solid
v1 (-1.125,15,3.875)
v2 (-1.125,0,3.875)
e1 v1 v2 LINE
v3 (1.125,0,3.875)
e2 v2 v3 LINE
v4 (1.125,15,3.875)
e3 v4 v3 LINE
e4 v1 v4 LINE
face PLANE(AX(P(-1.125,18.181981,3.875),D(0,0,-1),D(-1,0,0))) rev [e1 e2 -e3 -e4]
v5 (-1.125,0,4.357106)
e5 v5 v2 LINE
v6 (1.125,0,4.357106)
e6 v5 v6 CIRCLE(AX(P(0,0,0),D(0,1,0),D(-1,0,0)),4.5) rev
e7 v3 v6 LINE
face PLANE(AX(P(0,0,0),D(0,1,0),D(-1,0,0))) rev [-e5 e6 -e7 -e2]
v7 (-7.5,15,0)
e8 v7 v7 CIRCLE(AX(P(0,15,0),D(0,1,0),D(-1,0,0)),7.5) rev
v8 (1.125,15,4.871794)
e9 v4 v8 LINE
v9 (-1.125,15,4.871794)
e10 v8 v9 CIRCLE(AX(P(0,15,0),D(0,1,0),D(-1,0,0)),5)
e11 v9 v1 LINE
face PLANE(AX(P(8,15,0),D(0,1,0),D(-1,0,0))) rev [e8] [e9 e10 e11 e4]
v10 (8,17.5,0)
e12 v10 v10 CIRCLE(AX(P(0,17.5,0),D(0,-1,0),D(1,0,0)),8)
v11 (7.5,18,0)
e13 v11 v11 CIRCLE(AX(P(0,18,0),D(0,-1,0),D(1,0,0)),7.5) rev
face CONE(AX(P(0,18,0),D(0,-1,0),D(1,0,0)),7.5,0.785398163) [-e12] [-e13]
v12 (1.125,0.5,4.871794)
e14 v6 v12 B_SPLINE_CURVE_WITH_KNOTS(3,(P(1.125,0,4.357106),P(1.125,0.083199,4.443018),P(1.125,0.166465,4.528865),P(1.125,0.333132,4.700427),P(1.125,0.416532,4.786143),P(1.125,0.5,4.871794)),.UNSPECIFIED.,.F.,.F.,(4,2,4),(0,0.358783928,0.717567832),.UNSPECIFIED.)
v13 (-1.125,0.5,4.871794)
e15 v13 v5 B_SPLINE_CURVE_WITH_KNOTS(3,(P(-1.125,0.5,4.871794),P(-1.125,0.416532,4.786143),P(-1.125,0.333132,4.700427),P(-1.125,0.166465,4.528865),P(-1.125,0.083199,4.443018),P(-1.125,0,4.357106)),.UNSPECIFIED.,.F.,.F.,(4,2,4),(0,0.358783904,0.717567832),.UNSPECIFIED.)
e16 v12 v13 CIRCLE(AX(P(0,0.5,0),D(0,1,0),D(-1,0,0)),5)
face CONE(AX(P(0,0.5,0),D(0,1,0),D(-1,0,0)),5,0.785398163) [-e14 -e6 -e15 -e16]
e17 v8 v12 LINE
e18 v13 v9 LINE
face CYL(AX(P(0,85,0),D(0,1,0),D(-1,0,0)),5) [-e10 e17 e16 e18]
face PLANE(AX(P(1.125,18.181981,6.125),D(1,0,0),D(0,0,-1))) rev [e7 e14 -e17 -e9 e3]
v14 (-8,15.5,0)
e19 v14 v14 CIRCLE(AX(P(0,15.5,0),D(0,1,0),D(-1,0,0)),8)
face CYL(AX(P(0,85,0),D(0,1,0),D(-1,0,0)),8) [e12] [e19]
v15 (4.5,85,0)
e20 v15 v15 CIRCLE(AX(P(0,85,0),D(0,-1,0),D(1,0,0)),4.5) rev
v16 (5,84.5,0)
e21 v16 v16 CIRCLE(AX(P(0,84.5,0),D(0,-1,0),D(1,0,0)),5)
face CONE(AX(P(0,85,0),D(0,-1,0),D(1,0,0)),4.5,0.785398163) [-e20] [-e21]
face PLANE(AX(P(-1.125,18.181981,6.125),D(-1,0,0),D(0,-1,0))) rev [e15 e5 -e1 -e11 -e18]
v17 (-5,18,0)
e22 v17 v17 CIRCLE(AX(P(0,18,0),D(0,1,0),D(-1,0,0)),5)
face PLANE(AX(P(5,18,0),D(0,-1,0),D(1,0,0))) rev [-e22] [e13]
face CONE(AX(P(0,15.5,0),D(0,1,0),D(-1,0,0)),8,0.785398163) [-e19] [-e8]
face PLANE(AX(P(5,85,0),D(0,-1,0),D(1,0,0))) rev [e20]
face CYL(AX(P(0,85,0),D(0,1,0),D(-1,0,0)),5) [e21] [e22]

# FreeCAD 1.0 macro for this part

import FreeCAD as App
import Part
import Sketcher

V = App.Vector


def edges_at(feature, points):
    """Names of the edges that pass closest to the given points."""
    edges = feature.Shape.Edges
    near = lambda p: min(range(len(edges)), key=lambda i: edges[i].distToShape(Part.Vertex(*p))[0])
    return sorted({f"Edge{near(p) + 1}" for p in points})


def add_polygon(sketch, points):
    """Adds a closed chain of lines whose ends are joined by coincident constraints."""
    first, n = sketch.GeometryCount, len(points)
    for a, b in zip(points, points[1:] + points[:1]):
        sketch.addGeometry(Part.LineSegment(App.Vector(*a, 0), App.Vector(*b, 0)), False)
    for i in range(n):
        sketch.addConstraint(Sketcher.Constraint("Coincident", first + i, 2, first + (i + 1) % n, 1))

doc = App.newDocument("Part")
params = doc.addObject("Spreadsheet::Sheet", "Params")
for row, (alias, value) in enumerate([
    ("sketch1_width", "5 mm"),
    ("sketch1_width2", "3 mm"),
    ("sketch1_height", "15 mm"),
    ("sketch1_height2", "67 mm"),
    ("revolution_angle", "360 deg"),
    ("sketch2_width", "2.25 mm"),
    ("pocket1_length", "15 mm"),
    ("chamfer_size", "0.5 mm"),
    ("chamfer2_size", "0.5 mm"),
], start=1):
    params.set(f"A{row}", alias)
    params.set(f"B{row}", "=" + value)
    params.setAlias(f"B{row}", alias)

body = doc.addObject("PartDesign::Body", "Body")

# Sketch on XY plane
sketch1 = body.newObject("Sketcher::SketchObject", "Sketch")
sketch1.AttachmentSupport = (doc.getObject("XY_Plane"), [""])
sketch1.MapMode = "FlatFace"
add_polygon(sketch1, [(0, 0), (5, 0), (5, 15), (8, 15), (8, 18), (5, 18), (5, 85), (0, 85)])  # lines 0-7
sketch1.addConstraint([
    Sketcher.Constraint("Horizontal", 0),
    Sketcher.Constraint("Vertical", 1),
    Sketcher.Constraint("Horizontal", 2),
    Sketcher.Constraint("Vertical", 3),
    Sketcher.Constraint("Horizontal", 4),
    Sketcher.Constraint("Vertical", 5),
    Sketcher.Constraint("Horizontal", 6),
    Sketcher.Constraint("Vertical", 7),
    Sketcher.Constraint("Coincident", 7, 2, -1, 1),
    Sketcher.Constraint("Vertical", 1, 2, 4, 2),
    Sketcher.Constraint("Equal", 4, 3),
    Sketcher.Constraint("DistanceX", 0, 1, 0, 2, 5.0),
    Sketcher.Constraint("DistanceX", 2, 1, 2, 2, 3.0),
    Sketcher.Constraint("DistanceY", 1, 1, 1, 2, 15.0),
    Sketcher.Constraint("DistanceY", 5, 1, 5, 2, 67.0),
])
sketch1.setExpression("Constraints[19]", "Params.sketch1_width")
sketch1.setExpression("Constraints[20]", "Params.sketch1_width2")
sketch1.setExpression("Constraints[21]", "Params.sketch1_height")
sketch1.setExpression("Constraints[22]", "Params.sketch1_height2")
revolution = body.newObject("PartDesign::Revolution", "Revolution")
revolution.Profile = sketch1
revolution.ReferenceAxis = (sketch1, ["V_Axis"])
revolution.setExpression("Angle", "Params.revolution_angle")

# Sketch on XZ plane
sketch2 = body.newObject("Sketcher::SketchObject", "Sketch001")
sketch2.AttachmentSupport = (doc.getObject("XZ_Plane"), [""])
sketch2.MapMode = "FlatFace"
add_polygon(sketch2, [(-1.125, 6.125), (-1.125, 3.875), (1.125, 3.875), (1.125, 6.125)])  # lines 0-3
sketch2.addConstraint([
    Sketcher.Constraint("Vertical", 0),
    Sketcher.Constraint("Horizontal", 1),
    Sketcher.Constraint("Vertical", 2),
    Sketcher.Constraint("Horizontal", 3),
    Sketcher.Constraint("Equal", 3, 0),
    Sketcher.Constraint("DistanceX", 1, 1, 1, 2, 2.25),
    Sketcher.Constraint("DistanceX", 0, 2, -1, 1, 1.125),
    Sketcher.Constraint("DistanceY", -1, 1, 0, 2, 3.875),
])
sketch2.setExpression("Constraints[9]", "Params.sketch2_width")
pocket1 = body.newObject("PartDesign::Pocket", "Pocket")
pocket1.Profile = sketch2
pocket1.setExpression("Length", "Params.pocket1_length")
doc.recompute()

chamfer = body.newObject("PartDesign::Chamfer", "Chamfer")
chamfer.Base = (pocket1, edges_at(pocket1, [(8, 18, 0), (8, 15, 0)]))
chamfer.setExpression("Size", "Params.chamfer_size")
doc.recompute()

chamfer2 = body.newObject("PartDesign::Chamfer", "Chamfer001")
chamfer2.Base = (chamfer, edges_at(chamfer, [(0, 0, -5), (5, 85, 0)]))
chamfer2.setExpression("Size", "Params.chamfer2_size")

doc.recompute()
